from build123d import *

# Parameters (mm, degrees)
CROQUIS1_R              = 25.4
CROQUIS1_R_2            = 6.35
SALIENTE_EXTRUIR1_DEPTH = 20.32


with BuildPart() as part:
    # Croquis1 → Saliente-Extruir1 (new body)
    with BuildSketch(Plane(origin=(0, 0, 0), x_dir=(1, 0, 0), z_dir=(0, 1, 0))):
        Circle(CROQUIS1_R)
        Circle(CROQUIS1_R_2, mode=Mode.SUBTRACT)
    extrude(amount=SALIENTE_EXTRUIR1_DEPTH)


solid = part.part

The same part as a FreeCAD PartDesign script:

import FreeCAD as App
import Part
import Sketcher
from FreeCAD import Vector
Q = App.Units.Quantity

doc = App.newDocument("Part")
params = doc.addObject("Spreadsheet::Sheet", "Params")
for row, (alias, value) in enumerate([
    ("sketch1_diameter", "2 in"),
    ("sketch1_diameter2", "0.5 in"),
    ("pad1_length", "0.8 in"),
], start=1):
    params.set(f"A{row}", alias)
    params.set(f"B{row}", "=" + value)
    params.setAlias(f"B{row}", alias)

body = doc.addObject("PartDesign::Body", "Body")

sketch1 = body.newObject("Sketcher::SketchObject", "Sketch")
sketch1.AttachmentSupport = (doc.getObject("XZ_Plane"), [""])
sketch1.MapMode = "FlatFace"
sketch1.addGeometry([
    Part.Circle(Vector(0, 0, 0), Vector(0, 0, 1), 25),
    Part.Circle(Vector(0, 0, 0), Vector(0, 0, 1), 6),
], False)
sketch1.addConstraint([
    Sketcher.Constraint("Coincident", 0, 3, -1, 1),
    Sketcher.Constraint("Coincident", 1, 3, -1, 1),
    Sketcher.Constraint("Diameter", 0, Q("2 in")),
    Sketcher.Constraint("Diameter", 1, Q("0.5 in")),
])
sketch1.setExpression("Constraints[2]", "Params.sketch1_diameter")
sketch1.setExpression("Constraints[3]", "Params.sketch1_diameter2")
pad1 = body.newObject("PartDesign::Pad", "Pad")
pad1.Profile = sketch1
pad1.setExpression("Length", "Params.pad1_length")
pad1.Reversed = True

doc.recompute()
